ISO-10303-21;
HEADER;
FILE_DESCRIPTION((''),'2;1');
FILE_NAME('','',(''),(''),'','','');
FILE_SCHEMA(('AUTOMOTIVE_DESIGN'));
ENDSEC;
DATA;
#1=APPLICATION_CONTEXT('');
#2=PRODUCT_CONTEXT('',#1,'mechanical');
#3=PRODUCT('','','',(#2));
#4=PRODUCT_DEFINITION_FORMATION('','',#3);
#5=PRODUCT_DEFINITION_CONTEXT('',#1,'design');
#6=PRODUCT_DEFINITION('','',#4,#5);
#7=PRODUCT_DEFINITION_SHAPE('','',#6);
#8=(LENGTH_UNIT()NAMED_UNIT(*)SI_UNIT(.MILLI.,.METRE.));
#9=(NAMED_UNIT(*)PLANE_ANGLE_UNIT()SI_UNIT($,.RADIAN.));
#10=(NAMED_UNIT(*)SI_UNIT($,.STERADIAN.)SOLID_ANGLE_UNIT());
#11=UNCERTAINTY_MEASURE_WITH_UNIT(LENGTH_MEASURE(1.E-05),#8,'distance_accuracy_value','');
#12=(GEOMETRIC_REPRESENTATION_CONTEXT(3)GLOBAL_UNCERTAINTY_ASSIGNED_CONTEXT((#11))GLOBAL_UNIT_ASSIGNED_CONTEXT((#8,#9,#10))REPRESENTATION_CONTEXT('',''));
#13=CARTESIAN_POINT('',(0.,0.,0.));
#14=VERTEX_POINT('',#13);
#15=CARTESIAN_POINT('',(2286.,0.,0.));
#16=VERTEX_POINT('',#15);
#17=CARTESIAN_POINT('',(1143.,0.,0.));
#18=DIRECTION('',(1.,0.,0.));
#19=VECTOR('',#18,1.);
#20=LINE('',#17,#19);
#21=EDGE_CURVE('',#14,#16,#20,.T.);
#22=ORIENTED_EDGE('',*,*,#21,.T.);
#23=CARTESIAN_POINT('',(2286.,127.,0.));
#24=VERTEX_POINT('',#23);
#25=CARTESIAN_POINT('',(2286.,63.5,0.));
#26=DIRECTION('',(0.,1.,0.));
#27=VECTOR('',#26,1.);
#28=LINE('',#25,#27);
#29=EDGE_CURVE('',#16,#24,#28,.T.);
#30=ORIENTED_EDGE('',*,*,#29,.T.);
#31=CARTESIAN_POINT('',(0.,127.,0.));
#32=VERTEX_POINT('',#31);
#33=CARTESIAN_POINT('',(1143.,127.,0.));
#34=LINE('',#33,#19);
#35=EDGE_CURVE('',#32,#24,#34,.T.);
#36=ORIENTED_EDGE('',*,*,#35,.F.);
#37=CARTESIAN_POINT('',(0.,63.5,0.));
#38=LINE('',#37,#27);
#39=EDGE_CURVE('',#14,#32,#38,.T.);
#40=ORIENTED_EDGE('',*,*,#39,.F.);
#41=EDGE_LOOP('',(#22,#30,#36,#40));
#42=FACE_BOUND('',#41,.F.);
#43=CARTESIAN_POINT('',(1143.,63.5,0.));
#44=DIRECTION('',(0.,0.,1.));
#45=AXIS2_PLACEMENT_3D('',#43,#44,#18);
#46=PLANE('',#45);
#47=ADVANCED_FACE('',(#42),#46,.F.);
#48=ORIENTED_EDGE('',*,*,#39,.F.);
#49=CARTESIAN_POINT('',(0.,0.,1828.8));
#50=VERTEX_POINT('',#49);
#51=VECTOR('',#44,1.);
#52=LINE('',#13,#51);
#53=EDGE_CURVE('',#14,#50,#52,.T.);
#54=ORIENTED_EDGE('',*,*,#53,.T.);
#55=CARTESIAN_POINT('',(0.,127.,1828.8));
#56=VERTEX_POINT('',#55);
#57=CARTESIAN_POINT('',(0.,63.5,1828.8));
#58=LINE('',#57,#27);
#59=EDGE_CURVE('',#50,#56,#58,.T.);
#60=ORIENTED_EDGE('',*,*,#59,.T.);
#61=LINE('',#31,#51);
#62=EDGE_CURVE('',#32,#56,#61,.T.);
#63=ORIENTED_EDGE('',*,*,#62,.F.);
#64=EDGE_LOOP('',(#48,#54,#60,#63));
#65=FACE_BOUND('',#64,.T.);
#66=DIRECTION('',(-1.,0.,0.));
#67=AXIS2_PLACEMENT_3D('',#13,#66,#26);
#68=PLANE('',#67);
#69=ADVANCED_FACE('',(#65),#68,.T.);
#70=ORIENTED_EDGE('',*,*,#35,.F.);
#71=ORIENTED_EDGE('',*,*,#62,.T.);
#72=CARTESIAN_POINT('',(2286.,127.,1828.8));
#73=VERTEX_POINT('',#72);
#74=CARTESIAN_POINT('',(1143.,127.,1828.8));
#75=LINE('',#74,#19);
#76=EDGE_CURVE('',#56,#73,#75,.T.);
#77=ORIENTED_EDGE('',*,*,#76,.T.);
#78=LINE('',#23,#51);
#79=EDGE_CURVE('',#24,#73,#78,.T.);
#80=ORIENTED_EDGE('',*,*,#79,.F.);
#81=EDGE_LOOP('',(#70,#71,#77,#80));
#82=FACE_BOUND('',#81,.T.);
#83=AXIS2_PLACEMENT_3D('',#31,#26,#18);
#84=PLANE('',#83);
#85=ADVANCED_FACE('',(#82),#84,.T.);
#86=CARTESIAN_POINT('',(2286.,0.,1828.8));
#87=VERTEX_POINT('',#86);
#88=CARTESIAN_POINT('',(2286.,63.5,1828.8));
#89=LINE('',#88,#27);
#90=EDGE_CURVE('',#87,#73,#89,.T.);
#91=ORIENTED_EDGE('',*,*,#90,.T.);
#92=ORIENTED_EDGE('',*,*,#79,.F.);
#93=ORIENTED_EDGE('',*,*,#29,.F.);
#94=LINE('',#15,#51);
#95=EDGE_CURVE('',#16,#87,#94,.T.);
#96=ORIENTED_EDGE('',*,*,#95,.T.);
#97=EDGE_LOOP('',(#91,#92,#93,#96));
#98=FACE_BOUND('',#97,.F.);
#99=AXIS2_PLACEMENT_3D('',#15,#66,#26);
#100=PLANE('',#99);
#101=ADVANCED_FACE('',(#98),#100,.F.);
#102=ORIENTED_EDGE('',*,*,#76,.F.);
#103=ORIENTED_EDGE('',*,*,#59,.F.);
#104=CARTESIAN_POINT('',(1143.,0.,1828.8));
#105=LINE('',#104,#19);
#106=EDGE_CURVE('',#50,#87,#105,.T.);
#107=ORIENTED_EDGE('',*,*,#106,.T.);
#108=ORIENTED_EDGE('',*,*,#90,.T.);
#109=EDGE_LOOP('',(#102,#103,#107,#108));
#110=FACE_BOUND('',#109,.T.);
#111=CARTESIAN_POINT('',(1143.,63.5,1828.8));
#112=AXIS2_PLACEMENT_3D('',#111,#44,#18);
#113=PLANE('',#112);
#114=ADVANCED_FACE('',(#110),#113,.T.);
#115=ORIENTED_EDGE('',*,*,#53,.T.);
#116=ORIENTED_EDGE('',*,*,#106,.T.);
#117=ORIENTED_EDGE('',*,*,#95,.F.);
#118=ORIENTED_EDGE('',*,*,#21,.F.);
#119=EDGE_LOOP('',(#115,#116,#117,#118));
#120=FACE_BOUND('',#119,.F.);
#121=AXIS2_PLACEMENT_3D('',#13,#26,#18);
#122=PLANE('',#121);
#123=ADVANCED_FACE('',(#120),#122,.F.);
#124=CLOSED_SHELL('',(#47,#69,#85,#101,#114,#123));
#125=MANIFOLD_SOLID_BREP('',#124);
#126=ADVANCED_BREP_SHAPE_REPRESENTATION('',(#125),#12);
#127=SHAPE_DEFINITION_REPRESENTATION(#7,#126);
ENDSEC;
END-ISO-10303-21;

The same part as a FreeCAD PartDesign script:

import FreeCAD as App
import Part
import Sketcher
from FreeCAD import Vector
Q = App.Units.Quantity


def add_polygon(sketch, points):
    """Adds a closed chain of lines whose ends are joined by coincident constraints."""
    first, n = sketch.GeometryCount, len(points)
    for a, b in zip(points, points[1:] + points[:1]):
        sketch.addGeometry(Part.LineSegment(App.Vector(*a, 0), App.Vector(*b, 0)), False)
    for i in range(n):
        sketch.addConstraint(Sketcher.Constraint("Coincident", first + i, 2, first + (i + 1) % n, 1))

doc = App.newDocument("Part")
body = doc.addObject("PartDesign::Body", "Body")

# Sketch on XY plane
sketch1 = body.newObject("Sketcher::SketchObject", "Sketch")
sketch1.AttachmentSupport = (doc.getObject("XY_Plane"), [""])
sketch1.MapMode = "FlatFace"
add_polygon(sketch1, [(0, 127), (0, 0), (2286, 0), (2286, 127)])  # lines 0-3
sketch1.addConstraint(Sketcher.Constraint("Vertical", 0))
sketch1.addConstraint(Sketcher.Constraint("Horizontal", 1))
sketch1.addConstraint(Sketcher.Constraint("Vertical", 2))
sketch1.addConstraint(Sketcher.Constraint("Horizontal", 3))
sketch1.addConstraint(Sketcher.Constraint("Coincident", 0, 2, -1, 1))
sketch1.addConstraint(Sketcher.Constraint("DistanceX", 1, 1, 1, 2, Q("90 in")))
sketch1.addConstraint(Sketcher.Constraint("DistanceY", 0, 2, 0, 1, Q("5 in")))
pad1 = body.newObject("PartDesign::Pad", "Pad")
pad1.Profile = sketch1
pad1.Length = Q("72 in")

doc.recompute()
